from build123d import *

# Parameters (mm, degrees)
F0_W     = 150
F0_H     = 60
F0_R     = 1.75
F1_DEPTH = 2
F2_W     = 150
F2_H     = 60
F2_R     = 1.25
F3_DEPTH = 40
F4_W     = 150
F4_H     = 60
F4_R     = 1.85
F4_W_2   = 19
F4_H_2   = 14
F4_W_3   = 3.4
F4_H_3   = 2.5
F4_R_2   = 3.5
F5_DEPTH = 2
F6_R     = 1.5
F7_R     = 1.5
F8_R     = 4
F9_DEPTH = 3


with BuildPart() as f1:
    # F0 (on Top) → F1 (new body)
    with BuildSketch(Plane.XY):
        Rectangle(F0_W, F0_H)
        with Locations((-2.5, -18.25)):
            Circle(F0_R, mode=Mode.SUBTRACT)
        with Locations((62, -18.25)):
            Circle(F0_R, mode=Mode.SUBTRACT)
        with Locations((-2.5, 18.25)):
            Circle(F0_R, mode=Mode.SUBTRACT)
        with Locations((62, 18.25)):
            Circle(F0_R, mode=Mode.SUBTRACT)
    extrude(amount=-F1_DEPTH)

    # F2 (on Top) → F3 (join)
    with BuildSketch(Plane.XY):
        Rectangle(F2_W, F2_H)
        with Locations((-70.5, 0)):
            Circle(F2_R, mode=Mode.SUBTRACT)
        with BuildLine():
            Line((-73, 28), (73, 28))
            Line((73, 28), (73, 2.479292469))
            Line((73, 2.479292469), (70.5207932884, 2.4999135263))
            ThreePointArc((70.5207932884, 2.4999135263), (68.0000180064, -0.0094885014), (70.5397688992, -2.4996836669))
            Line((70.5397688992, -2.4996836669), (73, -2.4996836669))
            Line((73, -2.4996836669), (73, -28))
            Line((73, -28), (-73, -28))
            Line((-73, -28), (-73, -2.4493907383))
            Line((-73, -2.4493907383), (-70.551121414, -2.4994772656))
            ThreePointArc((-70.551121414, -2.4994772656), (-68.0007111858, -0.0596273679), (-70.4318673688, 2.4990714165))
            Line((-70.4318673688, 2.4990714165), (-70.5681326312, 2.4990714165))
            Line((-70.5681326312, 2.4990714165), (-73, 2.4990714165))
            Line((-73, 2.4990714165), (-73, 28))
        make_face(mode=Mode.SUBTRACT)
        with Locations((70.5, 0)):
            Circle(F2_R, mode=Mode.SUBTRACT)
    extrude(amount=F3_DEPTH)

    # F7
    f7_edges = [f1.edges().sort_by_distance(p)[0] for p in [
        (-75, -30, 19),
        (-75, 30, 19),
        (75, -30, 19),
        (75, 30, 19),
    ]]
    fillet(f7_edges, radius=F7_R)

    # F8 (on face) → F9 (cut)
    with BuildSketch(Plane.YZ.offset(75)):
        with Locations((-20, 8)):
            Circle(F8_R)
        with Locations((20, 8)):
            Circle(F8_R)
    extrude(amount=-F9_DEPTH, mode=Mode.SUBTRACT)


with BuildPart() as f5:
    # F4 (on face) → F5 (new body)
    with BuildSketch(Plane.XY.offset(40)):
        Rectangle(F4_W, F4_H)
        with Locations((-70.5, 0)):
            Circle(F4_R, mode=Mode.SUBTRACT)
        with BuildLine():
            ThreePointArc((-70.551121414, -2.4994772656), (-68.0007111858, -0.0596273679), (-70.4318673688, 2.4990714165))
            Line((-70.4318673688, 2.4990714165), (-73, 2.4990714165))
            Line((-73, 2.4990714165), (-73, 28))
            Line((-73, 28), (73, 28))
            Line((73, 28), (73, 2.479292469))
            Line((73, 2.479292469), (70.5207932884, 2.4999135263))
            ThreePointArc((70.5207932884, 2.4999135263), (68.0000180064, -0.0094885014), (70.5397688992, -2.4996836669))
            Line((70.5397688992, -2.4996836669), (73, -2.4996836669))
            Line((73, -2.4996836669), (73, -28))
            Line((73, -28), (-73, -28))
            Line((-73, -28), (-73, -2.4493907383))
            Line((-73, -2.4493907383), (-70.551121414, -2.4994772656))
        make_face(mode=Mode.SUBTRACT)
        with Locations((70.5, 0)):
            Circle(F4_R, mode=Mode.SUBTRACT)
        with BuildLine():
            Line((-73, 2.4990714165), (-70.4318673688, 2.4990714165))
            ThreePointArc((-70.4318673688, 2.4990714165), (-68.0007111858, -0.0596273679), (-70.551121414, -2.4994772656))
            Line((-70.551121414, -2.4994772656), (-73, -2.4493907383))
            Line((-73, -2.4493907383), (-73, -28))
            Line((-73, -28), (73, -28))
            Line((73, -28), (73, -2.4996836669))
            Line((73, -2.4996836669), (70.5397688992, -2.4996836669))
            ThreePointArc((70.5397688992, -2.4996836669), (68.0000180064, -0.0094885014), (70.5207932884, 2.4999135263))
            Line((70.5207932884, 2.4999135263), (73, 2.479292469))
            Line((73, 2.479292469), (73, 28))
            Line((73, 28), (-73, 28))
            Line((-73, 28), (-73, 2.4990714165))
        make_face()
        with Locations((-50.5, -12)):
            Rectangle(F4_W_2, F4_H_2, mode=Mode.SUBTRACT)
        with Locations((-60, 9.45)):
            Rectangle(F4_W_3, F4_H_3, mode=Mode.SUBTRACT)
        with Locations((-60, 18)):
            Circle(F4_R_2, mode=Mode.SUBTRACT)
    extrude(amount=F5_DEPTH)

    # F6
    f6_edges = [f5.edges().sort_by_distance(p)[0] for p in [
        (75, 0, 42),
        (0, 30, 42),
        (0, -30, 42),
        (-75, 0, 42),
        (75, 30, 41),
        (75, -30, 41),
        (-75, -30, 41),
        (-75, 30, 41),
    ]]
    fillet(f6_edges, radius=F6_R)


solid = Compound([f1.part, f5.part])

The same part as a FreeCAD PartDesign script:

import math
import FreeCAD as App
import Part
import Sketcher


def edges_at(feature, points):
    """Names of the edges that pass closest to the given points."""
    edges = feature.Shape.Edges
    near = lambda p: min(range(len(edges)), key=lambda i: edges[i].distToShape(Part.Vertex(*p))[0])
    return sorted({f"Edge{near(p) + 1}" for p in points})

doc = App.newDocument("Part")
params = doc.addObject("Spreadsheet::Sheet", "Params")
for row, (alias, value) in enumerate([
    ("sketch1_diameter", "3.5 mm"),
    ("sketch1_width", "150 mm"),
    ("sketch1_height", "60 mm"),
    ("pad1_length", "2 mm"),
    ("sketch2_diameter", "2.5 mm"),
    ("sketch2_radius", "2.5 mm"),
    ("sketch2_width", "150 mm"),
    ("sketch2_width2", "146 mm"),
    ("sketch2_height", "60 mm"),
    ("pad2_length", "40 mm"),
    ("fillet_radius", "1.5 mm"),
    ("sketch3_diameter", "8 mm"),
    ("pocket1_length", "3 mm"),
    ("sketch4_diameter", "7 mm"),
    ("sketch4_diameter2", "3.7 mm"),
    ("sketch4_width", "150 mm"),
    ("sketch4_width2", "19 mm"),
    ("sketch4_height", "60 mm"),
    ("pad3_length", "2 mm"),
    ("fillet2_radius", "1.5 mm"),
], start=1):
    params.set(f"A{row}", alias)
    params.set(f"B{row}", "=" + value)
    params.setAlias(f"B{row}", alias)

body = doc.addObject("PartDesign::Body", "Body")

sketch1 = body.newObject("Sketcher::SketchObject", "Sketch")
sketch1.AttachmentSupport = (doc.getObject("XY_Plane"), [""])
sketch1.MapMode = "FlatFace"
sketch1.addGeometry([
    Part.LineSegment(App.Vector(-75, 30, 0), App.Vector(-75, -30, 0)),
    Part.LineSegment(App.Vector(-75, -30, 0), App.Vector(75, -30, 0)),
    Part.LineSegment(App.Vector(75, -30, 0), App.Vector(75, 30, 0)),
    Part.LineSegment(App.Vector(75, 30, 0), App.Vector(-75, 30, 0)),
    Part.Circle(App.Vector(-2.5, -18.2, 0), App.Vector(0, 0, 1), 1.8),
    Part.Circle(App.Vector(62, -18.2, 0), App.Vector(0, 0, 1), 1.8),
    Part.Circle(App.Vector(-2.5, 18.2, 0), App.Vector(0, 0, 1), 1.8),
    Part.Circle(App.Vector(62, 18.2, 0), App.Vector(0, 0, 1), 1.8),
], False)
sketch1.addConstraint([
    Sketcher.Constraint("Coincident", 0, 2, 1, 1),
    Sketcher.Constraint("Coincident", 1, 2, 2, 1),
    Sketcher.Constraint("Coincident", 2, 2, 3, 1),
    Sketcher.Constraint("Coincident", 3, 2, 0, 1),
    Sketcher.Constraint("Vertical", 0),
    Sketcher.Constraint("Horizontal", 1),
    Sketcher.Constraint("Vertical", 2),
    Sketcher.Constraint("Horizontal", 3),
    Sketcher.Constraint("Equal", 4, 5),
    Sketcher.Constraint("Equal", 5, 6),
    Sketcher.Constraint("Equal", 6, 7),
    Sketcher.Constraint("Symmetric", 0, 2, 2, 2, -1, 1),
    Sketcher.Constraint("Symmetric", 4, 3, 6, 3, -1),
    Sketcher.Constraint("Symmetric", 5, 3, 7, 3, -1),
    Sketcher.Constraint("Horizontal", 4, 3, 5, 3),
    Sketcher.Constraint("Diameter", 4, 3.5),
    Sketcher.Constraint("DistanceX", 1, 1, 1, 2, 150.0),
    Sketcher.Constraint("DistanceY", 0, 2, 0, 1, 60.0),
    Sketcher.Constraint("DistanceX", -1, 1, 5, 3, 62.0),
    Sketcher.Constraint("DistanceX", 4, 3, -1, 1, 2.5),
    Sketcher.Constraint("DistanceY", 4, 3, 6, 3, 36.5),
])
sketch1.setExpression("Constraints[15]", "Params.sketch1_diameter")
sketch1.setExpression("Constraints[16]", "Params.sketch1_width")
sketch1.setExpression("Constraints[17]", "Params.sketch1_height")
pad1 = body.newObject("PartDesign::Pad", "Pad")
pad1.Profile = sketch1
pad1.setExpression("Length", "Params.pad1_length")
pad1.Reversed = True

sketch2 = body.newObject("Sketcher::SketchObject", "Sketch001")
sketch2.AttachmentSupport = (doc.getObject("XY_Plane"), [""])
sketch2.MapMode = "FlatFace"
sketch2.addGeometry([
    Part.LineSegment(App.Vector(-75, 30, 0), App.Vector(-75, -30, 0)),
    Part.LineSegment(App.Vector(-75, -30, 0), App.Vector(75, -30, 0)),
    Part.LineSegment(App.Vector(75, -30, 0), App.Vector(75, 30, 0)),
    Part.LineSegment(App.Vector(75, 30, 0), App.Vector(-75, 30, 0)),
    Part.Circle(App.Vector(-70.5, 0, 0), App.Vector(0, 0, 1), 1.2),
    Part.LineSegment(App.Vector(-73, 2.5, 0), App.Vector(-73, 28, 0)),
    Part.LineSegment(App.Vector(-73, 28, 0), App.Vector(73, 28, 0)),
    Part.LineSegment(App.Vector(73, 28, 0), App.Vector(73, 2.5, 0)),
    Part.LineSegment(App.Vector(73, 2.5, 0), App.Vector(70.5, 2.5, 0)),
    Part.ArcOfCircle(Part.Circle(App.Vector(70.5, 0, 0), App.Vector(0, 0, 1), 2.5), math.radians(90), math.radians(271)),
    Part.LineSegment(App.Vector(70.5, -2.5, 0), App.Vector(73, -2.5, 0)),
    Part.LineSegment(App.Vector(73, -2.5, 0), App.Vector(73, -28, 0)),
    Part.LineSegment(App.Vector(73, -28, 0), App.Vector(-73, -28, 0)),
    Part.LineSegment(App.Vector(-73, -28, 0), App.Vector(-73, -2.4, 0)),
    Part.LineSegment(App.Vector(-73, -2.4, 0), App.Vector(-70.6, -2.5, 0)),
    Part.ArcOfCircle(Part.Circle(App.Vector(-70.5, 0, 0), App.Vector(0, 0, 1), 2.5), math.radians(-91), math.radians(88)),
    Part.LineSegment(App.Vector(-70.4, 2.5, 0), App.Vector(-73, 2.5, 0)),
    Part.Circle(App.Vector(70.5, 0, 0), App.Vector(0, 0, 1), 1.2),
], False)
sketch2.addConstraint([
    Sketcher.Constraint("Coincident", 0, 2, 1, 1),
    Sketcher.Constraint("Coincident", 1, 2, 2, 1),
    Sketcher.Constraint("Coincident", 2, 2, 3, 1),
    Sketcher.Constraint("Coincident", 3, 2, 0, 1),
    Sketcher.Constraint("Coincident", 5, 2, 6, 1),
    Sketcher.Constraint("Coincident", 6, 2, 7, 1),
    Sketcher.Constraint("Coincident", 7, 2, 8, 1),
    Sketcher.Constraint("Tangent", 8, 2, 9, 1),
    Sketcher.Constraint("Coincident", 9, 2, 10, 1),
    Sketcher.Constraint("Coincident", 10, 2, 11, 1),
    Sketcher.Constraint("Coincident", 11, 2, 12, 1),
    Sketcher.Constraint("Coincident", 12, 2, 13, 1),
    Sketcher.Constraint("Coincident", 13, 2, 14, 1),
    Sketcher.Constraint("Tangent", 14, 2, 15, 1),
    Sketcher.Constraint("Coincident", 15, 2, 16, 1),
    Sketcher.Constraint("Coincident", 16, 2, 5, 1),
    Sketcher.Constraint("Vertical", 0),
    Sketcher.Constraint("Horizontal", 1),
    Sketcher.Constraint("Vertical", 2),
    Sketcher.Constraint("Horizontal", 3),
    Sketcher.Constraint("Vertical", 5),
    Sketcher.Constraint("Horizontal", 6),
    Sketcher.Constraint("Vertical", 7),
    Sketcher.Constraint("Horizontal", 10),
    Sketcher.Constraint("Vertical", 11),
    Sketcher.Constraint("Horizontal", 12),
    Sketcher.Constraint("Vertical", 13),
    Sketcher.Constraint("Horizontal", 16),
    Sketcher.Constraint("Coincident", 15, 3, 4, 3),
    Sketcher.Constraint("Coincident", 17, 3, 9, 3),
    Sketcher.Constraint("Equal", 9, 15),
    Sketcher.Constraint("Equal", 4, 17),
    Sketcher.Constraint("Symmetric", 4, 3, 9, 3, -1, 1),
    Sketcher.Constraint("Symmetric", 0, 2, 2, 2, -1, 1),
    Sketcher.Constraint("Symmetric", 5, 2, 11, 2, -1, 1),
    Sketcher.Constraint("PointOnObject", 4, 3, -1),
    Sketcher.Constraint("Vertical", 7, 2, 10, 2),
    Sketcher.Constraint("Vertical", 5, 2, 12, 2),
    Sketcher.Constraint("Diameter", 4, 2.5),
    Sketcher.Constraint("Radius", 9, 2.5),
    Sketcher.Constraint("DistanceX", 1, 1, 1, 2, 150.0),
    Sketcher.Constraint("DistanceX", 6, 1, 6, 2, 146.0),
    Sketcher.Constraint("DistanceY", 0, 2, 0, 1, 60.0),
    Sketcher.Constraint("DistanceY", -1, 1, 5, 2, 28.0),
    Sketcher.Constraint("DistanceX", 4, 3, 9, 3, 141.0),
    Sketcher.Constraint("DistanceX", 10, 1, 10, 2, 2.460231),
    Sketcher.Constraint("DistanceY", 5, 1, 5, 2, 25.500929),
    Sketcher.Constraint("DistanceY", 13, 1, 13, 2, 25.550609),
    Sketcher.Constraint("DistanceY", 7, 2, 7, 1, 25.520708),
])
sketch2.setExpression("Constraints[38]", "Params.sketch2_diameter")
sketch2.setExpression("Constraints[39]", "Params.sketch2_radius")
sketch2.setExpression("Constraints[40]", "Params.sketch2_width")
sketch2.setExpression("Constraints[41]", "Params.sketch2_width2")
sketch2.setExpression("Constraints[42]", "Params.sketch2_height")
pad2 = body.newObject("PartDesign::Pad", "Pad001")
pad2.Profile = sketch2
pad2.setExpression("Length", "Params.pad2_length")
doc.recompute()

fillet = body.newObject("PartDesign::Fillet", "Fillet")
fillet.Base = (pad2, edges_at(pad2, [
    (-75, -30, 19),
    (-75, 30, 19),
    (75, -30, 19),
    (75, 30, 19),
]))
fillet.setExpression("Radius", "Params.fillet_radius")

sketch3 = body.newObject("Sketcher::SketchObject", "Sketch002")
sketch3.AttachmentSupport = (doc.getObject("YZ_Plane"), [""])
sketch3.MapMode = "FlatFace"
sketch3.AttachmentOffset = App.Placement(App.Vector(0, 0, 75), App.Rotation())
sketch3.addGeometry([
    Part.Circle(App.Vector(-20, 8, 0), App.Vector(0, 0, 1), 4),
    Part.Circle(App.Vector(20, 8, 0), App.Vector(0, 0, 1), 4),
], False)
sketch3.addConstraint([
    Sketcher.Constraint("Equal", 0, 1),
    Sketcher.Constraint("Symmetric", 0, 3, 1, 3, -2),
    Sketcher.Constraint("Diameter", 0, 8.0),
    Sketcher.Constraint("DistanceX", 0, 3, -1, 1, 20.0),
    Sketcher.Constraint("DistanceY", -1, 1, 0, 3, 8.0),
])
sketch3.setExpression("Constraints[2]", "Params.sketch3_diameter")
pocket1 = body.newObject("PartDesign::Pocket", "Pocket")
pocket1.Profile = sketch3
pocket1.setExpression("Length", "Params.pocket1_length")
body2 = doc.addObject("PartDesign::Body", "Body001")

sketch4 = body2.newObject("Sketcher::SketchObject", "Sketch003")
sketch4.AttachmentSupport = (doc.getObject("XY_Plane001"), [""])
sketch4.MapMode = "FlatFace"
sketch4.AttachmentOffset = App.Placement(App.Vector(0, 0, 40), App.Rotation())
sketch4.addGeometry([
    Part.LineSegment(App.Vector(-75, 30, 0), App.Vector(-75, -30, 0)),
    Part.LineSegment(App.Vector(-75, -30, 0), App.Vector(75, -30, 0)),
    Part.LineSegment(App.Vector(75, -30, 0), App.Vector(75, 30, 0)),
    Part.LineSegment(App.Vector(75, 30, 0), App.Vector(-75, 30, 0)),
    Part.LineSegment(App.Vector(-41, -19, 0), App.Vector(-60, -19, 0)),
    Part.LineSegment(App.Vector(-60, -19, 0), App.Vector(-60, -5, 0)),
    Part.LineSegment(App.Vector(-60, -5, 0), App.Vector(-41, -5, 0)),
    Part.LineSegment(App.Vector(-41, -5, 0), App.Vector(-41, -19, 0)),
    Part.Circle(App.Vector(-70.5, 0, 0), App.Vector(0, 0, 1), 1.9),
    Part.Circle(App.Vector(70.5, 0, 0), App.Vector(0, 0, 1), 1.9),
    Part.LineSegment(App.Vector(-58.3, 8.2, 0), App.Vector(-61.7, 8.2, 0)),
    Part.LineSegment(App.Vector(-61.7, 8.2, 0), App.Vector(-61.7, 10.7, 0)),
    Part.LineSegment(App.Vector(-61.7, 10.7, 0), App.Vector(-58.3, 10.7, 0)),
    Part.LineSegment(App.Vector(-58.3, 10.7, 0), App.Vector(-58.3, 8.2, 0)),
    Part.Circle(App.Vector(-60, 18, 0), App.Vector(0, 0, 1), 3.5),
], False)
sketch4.addConstraint([
    Sketcher.Constraint("Coincident", 0, 2, 1, 1),
    Sketcher.Constraint("Coincident", 1, 2, 2, 1),
    Sketcher.Constraint("Coincident", 2, 2, 3, 1),
    Sketcher.Constraint("Coincident", 3, 2, 0, 1),
    Sketcher.Constraint("Coincident", 4, 2, 5, 1),
    Sketcher.Constraint("Coincident", 5, 2, 6, 1),
    Sketcher.Constraint("Coincident", 6, 2, 7, 1),
    Sketcher.Constraint("Coincident", 7, 2, 4, 1),
    Sketcher.Constraint("Coincident", 10, 2, 11, 1),
    Sketcher.Constraint("Coincident", 11, 2, 12, 1),
    Sketcher.Constraint("Coincident", 12, 2, 13, 1),
    Sketcher.Constraint("Coincident", 13, 2, 10, 1),
    Sketcher.Constraint("Vertical", 0),
    Sketcher.Constraint("Horizontal", 1),
    Sketcher.Constraint("Vertical", 2),
    Sketcher.Constraint("Horizontal", 3),
    Sketcher.Constraint("Horizontal", 4),
    Sketcher.Constraint("Vertical", 5),
    Sketcher.Constraint("Horizontal", 6),
    Sketcher.Constraint("Vertical", 7),
    Sketcher.Constraint("Horizontal", 10),
    Sketcher.Constraint("Vertical", 11),
    Sketcher.Constraint("Horizontal", 12),
    Sketcher.Constraint("Vertical", 13),
    Sketcher.Constraint("Equal", 8, 9),
    Sketcher.Constraint("Symmetric", 8, 3, 9, 3, -1, 1),
    Sketcher.Constraint("Symmetric", 0, 2, 2, 2, -1, 1),
    Sketcher.Constraint("PointOnObject", 8, 3, -1),
    Sketcher.Constraint("Vertical", 14, 3, 4, 2),
    Sketcher.Constraint("Diameter", 14, 7.0),
    Sketcher.Constraint("Diameter", 8, 3.7),
    Sketcher.Constraint("DistanceX", 1, 1, 1, 2, 150.0),
    Sketcher.Constraint("DistanceX", 4, 2, 4, 1, 19.0),
    Sketcher.Constraint("DistanceY", 0, 2, 0, 1, 60.0),
    Sketcher.Constraint("DistanceY", 5, 1, 5, 2, 14.0),
    Sketcher.Constraint("DistanceX", 10, 2, 10, 1, 3.4),
    Sketcher.Constraint("DistanceY", 11, 1, 11, 2, 2.5),
    Sketcher.Constraint("DistanceX", 14, 3, -1, 1, 60.0),
    Sketcher.Constraint("DistanceY", -1, 1, 14, 3, 18.0),
    Sketcher.Constraint("DistanceY", 4, 2, -1, 1, 19.0),
    Sketcher.Constraint("DistanceX", 8, 3, 9, 3, 141.0),
    Sketcher.Constraint("DistanceX", 10, 2, -1, 1, 61.7),
    Sketcher.Constraint("DistanceY", -1, 1, 10, 2, 8.2),
])
sketch4.setExpression("Constraints[29]", "Params.sketch4_diameter")
sketch4.setExpression("Constraints[30]", "Params.sketch4_diameter2")
sketch4.setExpression("Constraints[31]", "Params.sketch4_width")
sketch4.setExpression("Constraints[32]", "Params.sketch4_width2")
sketch4.setExpression("Constraints[33]", "Params.sketch4_height")
pad3 = body2.newObject("PartDesign::Pad", "Pad002")
pad3.Profile = sketch4
pad3.setExpression("Length", "Params.pad3_length")
doc.recompute()

fillet2 = body2.newObject("PartDesign::Fillet", "Fillet001")
fillet2.Base = (pad3, edges_at(pad3, [
    (75, 0, 42),
    (0, 30, 42),
    (0, -30, 42),
    (-75, 0, 42),
    (75, 30, 41),
    (75, -30, 41),
    (-75, -30, 41),
    (-75, 30, 41),
]))
fillet2.setExpression("Radius", "Params.fillet2_radius")

doc.recompute()
